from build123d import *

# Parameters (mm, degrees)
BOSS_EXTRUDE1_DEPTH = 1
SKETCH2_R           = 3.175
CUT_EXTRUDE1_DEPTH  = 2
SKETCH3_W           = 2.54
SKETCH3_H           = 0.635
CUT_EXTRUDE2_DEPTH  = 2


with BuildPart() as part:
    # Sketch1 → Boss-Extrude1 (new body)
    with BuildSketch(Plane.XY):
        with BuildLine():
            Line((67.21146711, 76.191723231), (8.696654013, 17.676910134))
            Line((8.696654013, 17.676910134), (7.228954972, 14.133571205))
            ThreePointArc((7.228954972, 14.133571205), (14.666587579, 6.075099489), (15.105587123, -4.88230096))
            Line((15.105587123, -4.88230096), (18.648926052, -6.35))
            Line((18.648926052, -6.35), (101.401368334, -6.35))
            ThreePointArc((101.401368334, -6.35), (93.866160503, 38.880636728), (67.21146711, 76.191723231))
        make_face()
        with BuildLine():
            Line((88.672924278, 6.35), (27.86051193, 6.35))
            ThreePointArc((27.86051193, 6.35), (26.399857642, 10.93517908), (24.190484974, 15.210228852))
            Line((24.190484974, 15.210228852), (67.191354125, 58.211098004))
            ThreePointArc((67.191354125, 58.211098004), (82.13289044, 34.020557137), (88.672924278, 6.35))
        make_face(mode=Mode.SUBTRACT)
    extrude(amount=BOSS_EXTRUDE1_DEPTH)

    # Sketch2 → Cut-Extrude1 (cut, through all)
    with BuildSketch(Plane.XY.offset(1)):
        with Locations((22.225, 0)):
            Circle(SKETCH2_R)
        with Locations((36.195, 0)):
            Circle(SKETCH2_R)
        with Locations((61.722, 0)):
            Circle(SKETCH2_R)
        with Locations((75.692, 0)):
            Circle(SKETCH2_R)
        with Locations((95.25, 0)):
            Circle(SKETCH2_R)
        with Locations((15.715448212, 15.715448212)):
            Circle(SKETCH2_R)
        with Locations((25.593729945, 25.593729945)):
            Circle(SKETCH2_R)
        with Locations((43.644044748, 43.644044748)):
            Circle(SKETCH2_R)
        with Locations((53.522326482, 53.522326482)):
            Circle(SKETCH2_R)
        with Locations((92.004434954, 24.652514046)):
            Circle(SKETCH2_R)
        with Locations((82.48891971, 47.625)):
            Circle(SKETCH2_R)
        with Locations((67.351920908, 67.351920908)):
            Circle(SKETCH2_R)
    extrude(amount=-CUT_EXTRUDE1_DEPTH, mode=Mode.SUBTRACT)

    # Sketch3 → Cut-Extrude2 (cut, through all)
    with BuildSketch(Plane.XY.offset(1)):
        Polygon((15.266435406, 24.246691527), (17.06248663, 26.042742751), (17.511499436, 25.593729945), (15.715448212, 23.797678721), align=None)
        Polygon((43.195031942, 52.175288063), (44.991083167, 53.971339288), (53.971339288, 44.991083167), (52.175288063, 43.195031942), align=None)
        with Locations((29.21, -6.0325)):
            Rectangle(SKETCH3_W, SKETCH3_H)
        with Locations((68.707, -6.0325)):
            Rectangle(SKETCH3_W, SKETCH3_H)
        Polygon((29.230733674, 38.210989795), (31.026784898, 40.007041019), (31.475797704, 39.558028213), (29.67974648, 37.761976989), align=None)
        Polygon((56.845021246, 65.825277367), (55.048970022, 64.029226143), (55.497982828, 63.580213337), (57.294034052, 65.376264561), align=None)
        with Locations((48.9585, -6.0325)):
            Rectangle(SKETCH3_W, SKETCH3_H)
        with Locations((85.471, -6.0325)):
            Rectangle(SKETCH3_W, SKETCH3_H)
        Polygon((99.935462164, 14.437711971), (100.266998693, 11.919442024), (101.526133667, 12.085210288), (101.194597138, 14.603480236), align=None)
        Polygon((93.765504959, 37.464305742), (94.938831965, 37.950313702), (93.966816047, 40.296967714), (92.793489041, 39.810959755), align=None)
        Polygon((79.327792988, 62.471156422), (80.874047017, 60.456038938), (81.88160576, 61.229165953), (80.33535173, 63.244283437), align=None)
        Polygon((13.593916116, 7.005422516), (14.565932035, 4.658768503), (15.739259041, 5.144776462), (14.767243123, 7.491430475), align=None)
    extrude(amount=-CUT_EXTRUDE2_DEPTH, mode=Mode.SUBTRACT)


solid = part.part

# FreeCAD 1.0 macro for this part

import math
import FreeCAD as App
import Part
import Sketcher
from FreeCAD import Vector
Q = App.Units.Quantity

doc = App.newDocument("Part")
params = doc.addObject("Spreadsheet::Sheet", "Params")
for row, (alias, value) in enumerate([
    ("sketch1_radius", "4 in"),
    ("sketch1_radius2", "3.5 in"),
    ("sketch1_radius3", "0.625 in"),
    ("sketch1_radius4", "1.125 in"),
    ("pad1_length", "1 mm"),
    ("sketch2_diameter", "0.25 in"),
    ("sketch3_width", "0.1 in"),
    ("sketch3_length", "0.1 in"),
    ("sketch3_length2", "0.5 in"),
    ("sketch3_length3", "0.05 in"),
    ("sketch3_height", "0.025 in"),
], start=1):
    params.set(f"A{row}", alias)
    params.set(f"B{row}", "=" + value)
    params.setAlias(f"B{row}", alias)

body = doc.addObject("PartDesign::Body", "Body")

# Sketch on XY plane
sketch1 = doc.addObject("Sketcher::SketchObject", "Sketch")
body.addObject(sketch1)
sketch1.AttachmentSupport = (doc.XY_Plane, [""])
sketch1.MapMode = "FlatFace"
sketch1.addGeometry([
    Part.LineSegment(Vector(67.2, 76.2, 0), Vector(8.7, 17.7, 0)),  # 0
    Part.LineSegment(Vector(8.7, 17.7, 0), Vector(7.2, 14.1, 0)),  # 1
    Part.ArcOfCircle(Part.Circle(Vector(0, 0, 0), Vector(0, 0, 1), 15.9), math.radians(-18), math.radians(63)),  # 2
    Part.LineSegment(Vector(15.1, -4.9, 0), Vector(18.6, -6.3, 0)),  # 3
    Part.LineSegment(Vector(18.6, -6.3, 0), Vector(101.4, -6.3, 0)),  # 4
    Part.ArcOfCircle(Part.Circle(Vector(0, 0, 0), Vector(0, 0, 1), 101.6), math.radians(-4), math.radians(49)),  # 5
    Part.ArcOfCircle(Part.Circle(Vector(0, 0, 0), Vector(0, 0, 1), 88.9), math.radians(4), math.radians(41)),  # 6
    Part.LineSegment(Vector(88.7, 6.3, 0), Vector(27.9, 6.3, 0)),  # 7
    Part.ArcOfCircle(Part.Circle(Vector(0, 0, 0), Vector(0, 0, 1), 28.6), math.radians(12.84), math.radians(32.16)),  # 8
    Part.LineSegment(Vector(24.2, 15.2, 0), Vector(67.2, 58.2, 0)),  # 9
], False)
sketch1.addConstraint([
    Sketcher.Constraint("Coincident", 0, 2, 1, 1),
    Sketcher.Constraint("Coincident", 1, 2, 2, 2),
    Sketcher.Constraint("Coincident", 2, 1, 3, 1),
    Sketcher.Constraint("Coincident", 3, 2, 4, 1),
    Sketcher.Constraint("Coincident", 4, 2, 5, 1),
    Sketcher.Constraint("Coincident", 5, 2, 0, 1),
    Sketcher.Constraint("Coincident", 6, 1, 7, 1),
    Sketcher.Constraint("Coincident", 7, 2, 8, 1),
    Sketcher.Constraint("Coincident", 8, 2, 9, 1),
    Sketcher.Constraint("Coincident", 9, 2, 6, 2),
    Sketcher.Constraint("Horizontal", 4),
    Sketcher.Constraint("Horizontal", 7),
    Sketcher.Constraint("Coincident", 2, 3, -1, 1),
    Sketcher.Constraint("Coincident", 5, 3, -1, 1),
    Sketcher.Constraint("Coincident", 6, 3, -1, 1),
    Sketcher.Constraint("Coincident", 8, 3, -1, 1),
    Sketcher.Constraint("Perpendicular", 1, 3),
    Sketcher.Constraint("Parallel", 0, 9),
    Sketcher.Constraint("Equal", 1, 3),
    Sketcher.Constraint("Radius", 5, Q("4 in")),
    Sketcher.Constraint("Radius", 6, Q("3.5 in")),
    Sketcher.Constraint("Angle", 0, Q("-135 deg")),
    Sketcher.Constraint("Radius", 2, Q("0.625 in")),
    Sketcher.Constraint("Radius", 8, Q("1.125 in")),
    Sketcher.Constraint("Angle", 1, Q("-112.5 deg")),
    Sketcher.Constraint("DistanceY", 4, 2, 6, 1, Q("0.5 in")),
    Sketcher.Constraint("DistanceY", 3, 2, -1, 1, Q("0.25 in")),
    Sketcher.Constraint("DistanceY", 2, 1, -1, 1, 4.882301),
    Sketcher.Constraint("DistanceY", -1, 1, 9, 2, 58.211098),
    Sketcher.Constraint("DistanceX", 5, 2, 4, 2, 34.189901),
])
sketch1.setExpression("Constraints[19]", "Params.sketch1_radius")
sketch1.setExpression("Constraints[20]", "Params.sketch1_radius2")
sketch1.setExpression("Constraints[22]", "Params.sketch1_radius3")
sketch1.setExpression("Constraints[23]", "Params.sketch1_radius4")
pad1 = doc.addObject("PartDesign::Pad", "Pad")
body.addObject(pad1)
pad1.Profile = sketch1
pad1.setExpression("Length", "Params.pad1_length")

# Sketch on XY plane
sketch2 = doc.addObject("Sketcher::SketchObject", "Sketch001")
body.addObject(sketch2)
sketch2.AttachmentSupport = (doc.XY_Plane, [""])
sketch2.MapMode = "FlatFace"
sketch2.AttachmentOffset = App.Placement(Vector(0, 0, 1), App.Rotation())
sketch2.addGeometry([
    Part.Circle(Vector(22.2, 0, 0), Vector(0, 0, 1), 3.2),  # 0
    Part.Circle(Vector(36.2, 0, 0), Vector(0, 0, 1), 3.2),  # 1
    Part.Circle(Vector(61.7, 0, 0), Vector(0, 0, 1), 3.2),  # 2
    Part.Circle(Vector(75.7, 0, 0), Vector(0, 0, 1), 3.2),  # 3
    Part.Circle(Vector(95.2, 0, 0), Vector(0, 0, 1), 3.2),  # 4
    Part.Circle(Vector(15.7, 15.7, 0), Vector(0, 0, 1), 3.2),  # 5
    Part.Circle(Vector(25.6, 25.6, 0), Vector(0, 0, 1), 3.2),  # 6
    Part.Circle(Vector(43.6, 43.6, 0), Vector(0, 0, 1), 3.2),  # 7
    Part.Circle(Vector(53.5, 53.5, 0), Vector(0, 0, 1), 3.2),  # 8
    Part.Circle(Vector(92, 24.7, 0), Vector(0, 0, 1), 3.2),  # 9
    Part.Circle(Vector(82.5, 47.6, 0), Vector(0, 0, 1), 3.2),  # 10
    Part.Circle(Vector(67.4, 67.4, 0), Vector(0, 0, 1), 3.2),  # 11
], False)
sketch2.addConstraint([
    Sketcher.Constraint("Equal", 0, 1),
    Sketcher.Constraint("Equal", 1, 2),
    Sketcher.Constraint("Equal", 2, 3),
    Sketcher.Constraint("Equal", 3, 4),
    Sketcher.Constraint("Equal", 4, 5),
    Sketcher.Constraint("Equal", 5, 6),
    Sketcher.Constraint("Equal", 6, 7),
    Sketcher.Constraint("Equal", 7, 8),
    Sketcher.Constraint("Equal", 8, 9),
    Sketcher.Constraint("Equal", 9, 10),
    Sketcher.Constraint("Equal", 10, 11),
    Sketcher.Constraint("PointOnObject", 0, 3, -1),
    Sketcher.Constraint("PointOnObject", 1, 3, -1),
    Sketcher.Constraint("PointOnObject", 2, 3, -1),
    Sketcher.Constraint("PointOnObject", 3, 3, -1),
    Sketcher.Constraint("PointOnObject", 4, 3, -1),
    Sketcher.Constraint("Diameter", 0, Q("0.25 in")),
    Sketcher.Constraint("DistanceX", -1, 1, 2, 3, Q("2.43 in")),
    Sketcher.Constraint("DistanceX", -1, 1, 3, 3, Q("2.98 in")),
    Sketcher.Constraint("DistanceX", -1, 1, 4, 3, Q("3.75 in")),
    Sketcher.Constraint("DistanceX", 0, 3, 1, 3, Q("0.55 in")),
    Sketcher.Constraint("DistanceX", -1, 1, 0, 3, Q("0.875 in")),
    Sketcher.Constraint("DistanceY", -1, 1, 10, 3, Q("1.875 in")),
    Sketcher.Constraint("DistanceX", 11, 3, 10, 3, 15.136999),
    Sketcher.Constraint("DistanceX", -1, 1, 5, 3, 15.715448),
    Sketcher.Constraint("DistanceY", -1, 1, 5, 3, 15.715448),
    Sketcher.Constraint("DistanceX", -1, 1, 6, 3, 25.59373),
    Sketcher.Constraint("DistanceY", -1, 1, 6, 3, 25.59373),
    Sketcher.Constraint("DistanceX", -1, 1, 10, 3, 82.48892),
    Sketcher.Constraint("DistanceY", -1, 1, 11, 3, 67.351921),
    Sketcher.Constraint("DistanceX", 7, 3, 8, 3, 9.878282),
    Sketcher.Constraint("DistanceY", 7, 3, 8, 3, 9.878282),
    Sketcher.Constraint("DistanceX", 5, 3, 8, 3, 37.806878),
    Sketcher.Constraint("DistanceY", 5, 3, 8, 3, 37.806878),
    Sketcher.Constraint("DistanceX", 8, 3, 9, 3, 38.482108),
    Sketcher.Constraint("DistanceY", 9, 3, 7, 3, 18.991531),
])
sketch2.setExpression("Constraints[16]", "Params.sketch2_diameter")
pocket1 = doc.addObject("PartDesign::Pocket", "Pocket")
body.addObject(pocket1)
pocket1.Profile = sketch2
pocket1.Type = "ThroughAll"

# Sketch on XY plane
sketch3 = doc.addObject("Sketcher::SketchObject", "Sketch002")
body.addObject(sketch3)
sketch3.AttachmentSupport = (doc.XY_Plane, [""])
sketch3.MapMode = "FlatFace"
sketch3.AttachmentOffset = App.Placement(Vector(0, 0, 1), App.Rotation())
sketch3.addGeometry([
    Part.LineSegment(Vector(17.1, 26, 0), Vector(15.3, 24.2, 0)),  # 0
    Part.LineSegment(Vector(15.3, 24.2, 0), Vector(15.7, 23.8, 0)),  # 1
    Part.LineSegment(Vector(15.7, 23.8, 0), Vector(17.5, 25.6, 0)),  # 2
    Part.LineSegment(Vector(17.5, 25.6, 0), Vector(17.1, 26, 0)),  # 3
    Part.LineSegment(Vector(45, 54, 0), Vector(43.2, 52.2, 0)),  # 4
    Part.LineSegment(Vector(43.2, 52.2, 0), Vector(52.2, 43.2, 0)),  # 5
    Part.LineSegment(Vector(52.2, 43.2, 0), Vector(54, 45, 0)),  # 6
    Part.LineSegment(Vector(54, 45, 0), Vector(45, 54, 0)),  # 7
    Part.LineSegment(Vector(27.9, -5.7, 0), Vector(27.9, -6.3, 0)),  # 8
    Part.LineSegment(Vector(27.9, -6.3, 0), Vector(30.5, -6.3, 0)),  # 9
    Part.LineSegment(Vector(30.5, -6.3, 0), Vector(30.5, -5.7, 0)),  # 10
    Part.LineSegment(Vector(30.5, -5.7, 0), Vector(27.9, -5.7, 0)),  # 11
    Part.LineSegment(Vector(67.4, -5.7, 0), Vector(67.4, -6.3, 0)),  # 12
    Part.LineSegment(Vector(67.4, -6.3, 0), Vector(70, -6.3, 0)),  # 13
    Part.LineSegment(Vector(70, -6.3, 0), Vector(70, -5.7, 0)),  # 14
    Part.LineSegment(Vector(70, -5.7, 0), Vector(67.4, -5.7, 0)),  # 15
    Part.LineSegment(Vector(31, 40, 0), Vector(29.2, 38.2, 0)),  # 16
    Part.LineSegment(Vector(29.2, 38.2, 0), Vector(29.7, 37.8, 0)),  # 17
    Part.LineSegment(Vector(29.7, 37.8, 0), Vector(31.5, 39.6, 0)),  # 18
    Part.LineSegment(Vector(31.5, 39.6, 0), Vector(31, 40, 0)),  # 19
    Part.LineSegment(Vector(56.8, 65.8, 0), Vector(55, 64, 0)),  # 20
    Part.LineSegment(Vector(55, 64, 0), Vector(55.5, 63.6, 0)),  # 21
    Part.LineSegment(Vector(55.5, 63.6, 0), Vector(57.3, 65.4, 0)),  # 22
    Part.LineSegment(Vector(57.3, 65.4, 0), Vector(56.8, 65.8, 0)),  # 23
    Part.LineSegment(Vector(47.7, -5.7, 0), Vector(47.7, -6.3, 0)),  # 24
    Part.LineSegment(Vector(47.7, -6.3, 0), Vector(50.2, -6.3, 0)),  # 25
    Part.LineSegment(Vector(50.2, -6.3, 0), Vector(50.2, -5.7, 0)),  # 26
    Part.LineSegment(Vector(50.2, -5.7, 0), Vector(47.7, -5.7, 0)),  # 27
    Part.LineSegment(Vector(84.2, -5.7, 0), Vector(84.2, -6.3, 0)),  # 28
    Part.LineSegment(Vector(84.2, -6.3, 0), Vector(86.7, -6.3, 0)),  # 29
    Part.LineSegment(Vector(86.7, -6.3, 0), Vector(86.7, -5.7, 0)),  # 30
    Part.LineSegment(Vector(86.7, -5.7, 0), Vector(84.2, -5.7, 0)),  # 31
    Part.LineSegment(Vector(99.9, 14.4, 0), Vector(100.3, 11.9, 0)),  # 32
    Part.LineSegment(Vector(100.3, 11.9, 0), Vector(101.5, 12.1, 0)),  # 33
    Part.LineSegment(Vector(101.5, 12.1, 0), Vector(101.2, 14.6, 0)),  # 34
    Part.LineSegment(Vector(101.2, 14.6, 0), Vector(99.9, 14.4, 0)),  # 35
    Part.LineSegment(Vector(93.8, 37.5, 0), Vector(94.9, 38, 0)),  # 36
    Part.LineSegment(Vector(94.9, 38, 0), Vector(94, 40.3, 0)),  # 37
    Part.LineSegment(Vector(94, 40.3, 0), Vector(92.8, 39.8, 0)),  # 38
    Part.LineSegment(Vector(92.8, 39.8, 0), Vector(93.8, 37.5, 0)),  # 39
    Part.LineSegment(Vector(79.3, 62.5, 0), Vector(80.9, 60.5, 0)),  # 40
    Part.LineSegment(Vector(80.9, 60.5, 0), Vector(81.9, 61.2, 0)),  # 41
    Part.LineSegment(Vector(81.9, 61.2, 0), Vector(80.3, 63.2, 0)),  # 42
    Part.LineSegment(Vector(80.3, 63.2, 0), Vector(79.3, 62.5, 0)),  # 43
    Part.LineSegment(Vector(13.6, 7, 0), Vector(14.6, 4.7, 0)),  # 44
    Part.LineSegment(Vector(14.6, 4.7, 0), Vector(15.7, 5.1, 0)),  # 45
    Part.LineSegment(Vector(15.7, 5.1, 0), Vector(14.8, 7.5, 0)),  # 46
    Part.LineSegment(Vector(14.8, 7.5, 0), Vector(13.6, 7, 0)),  # 47
], False)
sketch3.addConstraint([
    Sketcher.Constraint("Coincident", 0, 2, 1, 1),
    Sketcher.Constraint("Coincident", 1, 2, 2, 1),
    Sketcher.Constraint("Coincident", 2, 2, 3, 1),
    Sketcher.Constraint("Coincident", 3, 2, 0, 1),
    Sketcher.Constraint("Coincident", 4, 2, 5, 1),
    Sketcher.Constraint("Coincident", 5, 2, 6, 1),
    Sketcher.Constraint("Coincident", 6, 2, 7, 1),
    Sketcher.Constraint("Coincident", 7, 2, 4, 1),
    Sketcher.Constraint("Coincident", 8, 2, 9, 1),
    Sketcher.Constraint("Coincident", 9, 2, 10, 1),
    Sketcher.Constraint("Coincident", 10, 2, 11, 1),
    Sketcher.Constraint("Coincident", 11, 2, 8, 1),
    Sketcher.Constraint("Coincident", 12, 2, 13, 1),
    Sketcher.Constraint("Coincident", 13, 2, 14, 1),
    Sketcher.Constraint("Coincident", 14, 2, 15, 1),
    Sketcher.Constraint("Coincident", 15, 2, 12, 1),
    Sketcher.Constraint("Coincident", 16, 2, 17, 1),
    Sketcher.Constraint("Coincident", 17, 2, 18, 1),
    Sketcher.Constraint("Coincident", 18, 2, 19, 1),
    Sketcher.Constraint("Coincident", 19, 2, 16, 1),
    Sketcher.Constraint("Coincident", 20, 2, 21, 1),
    Sketcher.Constraint("Coincident", 21, 2, 22, 1),
    Sketcher.Constraint("Coincident", 22, 2, 23, 1),
    Sketcher.Constraint("Coincident", 23, 2, 20, 1),
    Sketcher.Constraint("Coincident", 24, 2, 25, 1),
    Sketcher.Constraint("Coincident", 25, 2, 26, 1),
    Sketcher.Constraint("Coincident", 26, 2, 27, 1),
    Sketcher.Constraint("Coincident", 27, 2, 24, 1),
    Sketcher.Constraint("Coincident", 28, 2, 29, 1),
    Sketcher.Constraint("Coincident", 29, 2, 30, 1),
    Sketcher.Constraint("Coincident", 30, 2, 31, 1),
    Sketcher.Constraint("Coincident", 31, 2, 28, 1),
    Sketcher.Constraint("Coincident", 32, 2, 33, 1),
    Sketcher.Constraint("Coincident", 33, 2, 34, 1),
    Sketcher.Constraint("Coincident", 34, 2, 35, 1),
    Sketcher.Constraint("Coincident", 35, 2, 32, 1),
    Sketcher.Constraint("Coincident", 36, 2, 37, 1),
    Sketcher.Constraint("Coincident", 37, 2, 38, 1),
    Sketcher.Constraint("Coincident", 38, 2, 39, 1),
    Sketcher.Constraint("Coincident", 39, 2, 36, 1),
    Sketcher.Constraint("Coincident", 40, 2, 41, 1),
    Sketcher.Constraint("Coincident", 41, 2, 42, 1),
    Sketcher.Constraint("Coincident", 42, 2, 43, 1),
    Sketcher.Constraint("Coincident", 43, 2, 40, 1),
    Sketcher.Constraint("Coincident", 44, 2, 45, 1),
    Sketcher.Constraint("Coincident", 45, 2, 46, 1),
    Sketcher.Constraint("Coincident", 46, 2, 47, 1),
    Sketcher.Constraint("Coincident", 47, 2, 44, 1),
    Sketcher.Constraint("Vertical", 8),
    Sketcher.Constraint("Horizontal", 9),
    Sketcher.Constraint("Vertical", 10),
    Sketcher.Constraint("Horizontal", 11),
    Sketcher.Constraint("Vertical", 12),
    Sketcher.Constraint("Horizontal", 13),
    Sketcher.Constraint("Vertical", 14),
    Sketcher.Constraint("Horizontal", 15),
    Sketcher.Constraint("Vertical", 24),
    Sketcher.Constraint("Horizontal", 25),
    Sketcher.Constraint("Vertical", 26),
    Sketcher.Constraint("Horizontal", 27),
    Sketcher.Constraint("Vertical", 28),
    Sketcher.Constraint("Horizontal", 29),
    Sketcher.Constraint("Vertical", 30),
    Sketcher.Constraint("Horizontal", 31),
    Sketcher.Constraint("Perpendicular", 0, 1),
    Sketcher.Constraint("Perpendicular", 1, 2),
    Sketcher.Constraint("Perpendicular", 2, 3),
    Sketcher.Constraint("Perpendicular", 3, 4),
    Sketcher.Constraint("Perpendicular", 4, 5),
    Sketcher.Constraint("Perpendicular", 5, 6),
    Sketcher.Constraint("Perpendicular", 6, 7),
    Sketcher.Constraint("Perpendicular", 7, 16),
    Sketcher.Constraint("Perpendicular", 16, 17),
    Sketcher.Constraint("Perpendicular", 17, 18),
    Sketcher.Constraint("Perpendicular", 18, 19),
    Sketcher.Constraint("Perpendicular", 19, 20),
    Sketcher.Constraint("Perpendicular", 20, 21),
    Sketcher.Constraint("Perpendicular", 21, 22),
    Sketcher.Constraint("Perpendicular", 22, 23),
    Sketcher.Constraint("Perpendicular", 32, 33),
    Sketcher.Constraint("Perpendicular", 33, 34),
    Sketcher.Constraint("Perpendicular", 34, 35),
    Sketcher.Constraint("Perpendicular", 36, 37),
    Sketcher.Constraint("Perpendicular", 37, 38),
    Sketcher.Constraint("Perpendicular", 38, 39),
    Sketcher.Constraint("Perpendicular", 40, 41),
    Sketcher.Constraint("Perpendicular", 41, 42),
    Sketcher.Constraint("Perpendicular", 42, 43),
    Sketcher.Constraint("Parallel", 39, 44),
    Sketcher.Constraint("Perpendicular", 44, 45),
    Sketcher.Constraint("Perpendicular", 45, 46),
    Sketcher.Constraint("Perpendicular", 46, 47),
    Sketcher.Constraint("Horizontal", 9, 2, 12, 2),
    Sketcher.Constraint("Horizontal", 11, 2, 14, 2),
    Sketcher.Constraint("Horizontal", 13, 2, 24, 2),
    Sketcher.Constraint("Horizontal", 15, 2, 26, 2),
    Sketcher.Constraint("Horizontal", 25, 2, 28, 2),
    Sketcher.Constraint("Horizontal", 27, 2, 30, 2),
    Sketcher.Constraint("Equal", 11, 13),
    Sketcher.Constraint("Equal", 15, 25),
    Sketcher.Constraint("Equal", 27, 29),
    Sketcher.Constraint("Equal", 2, 4),
    Sketcher.Constraint("Equal", 6, 16),
    Sketcher.Constraint("Equal", 3, 17),
    Sketcher.Constraint("Equal", 18, 20),
    Sketcher.Constraint("Equal", 19, 21),
    Sketcher.Constraint("Equal", 22, 32),
    Sketcher.Constraint("Equal", 35, 36),
    Sketcher.Constraint("Equal", 34, 37),
    Sketcher.Constraint("Equal", 39, 40),
    Sketcher.Constraint("Equal", 38, 41),
    Sketcher.Constraint("Equal", 42, 44),
    Sketcher.Constraint("Equal", 43, 45),
    Sketcher.Constraint("DistanceX", 9, 1, 9, 2, Q("0.1 in")),
    Sketcher.Constraint("Angle", 0, Q("-135 deg")),
    Sketcher.Constraint("Distance", 0, Q("0.1 in")),
    Sketcher.Constraint("Distance", 5, Q("0.5 in")),
    Sketcher.Constraint("DistanceX", -1, 1, 8, 2, Q("1.1 in")),
    Sketcher.Constraint("Angle", 32, Q("-82.5 deg")),
    Sketcher.Constraint("Angle", 36, Q("22.5 deg")),
    Sketcher.Constraint("Angle", 40, Q("-52.5 deg")),
    Sketcher.Constraint("Distance", 33, Q("0.05 in")),
    Sketcher.Constraint("DistanceY", 8, 2, 8, 1, Q("0.025 in")),
    Sketcher.Constraint("DistanceY", 8, 2, -1, 1, Q("0.25 in")),
    Sketcher.Constraint("DistanceX", 13, 2, 28, 2, Q("0.56 in")),
    Sketcher.Constraint("Distance", 1, Q("0.025 in")),
    Sketcher.Constraint("DistanceX", -1, 1, 12, 2, Q("2.655 in")),
    Sketcher.Constraint("DistanceX", -1, 1, 24, 2, Q("1.8775 in")),
    Sketcher.Constraint("DistanceX", -1, 1, 2, 2, 17.511499),
    Sketcher.Constraint("DistanceX", -1, 1, 32, 2, 100.266999),
    Sketcher.Constraint("DistanceY", 2, 2, 5, 2, 17.601302),
    Sketcher.Constraint("DistanceX", 3, 2, 5, 2, 35.112801),
    Sketcher.Constraint("DistanceX", 16, 2, 4, 2, 13.964298),
    Sketcher.Constraint("DistanceY", 16, 2, 4, 2, 13.964298),
    Sketcher.Constraint("DistanceX", 7, 2, 21, 2, 10.5069),
    Sketcher.Constraint("DistanceY", 35, 2, 36, 2, 23.512602),
    Sketcher.Constraint("DistanceX", 36, 2, 33, 2, 6.587302),
    Sketcher.Constraint("DistanceY", 37, 2, 41, 2, 20.932198),
    Sketcher.Constraint("DistanceY", 41, 2, 22, 2, 4.147099),
    Sketcher.Constraint("DistanceY", 46, 2, 2, 2, 18.102299),
    Sketcher.Constraint("DistanceY", -1, 1, 0, 2, 24.246692),
    Sketcher.Constraint("DistanceY", -1, 1, 33, 2, 12.08521),
    Sketcher.Constraint("DistanceX", -1, 1, 42, 2, 80.335352),
    Sketcher.Constraint("DistanceX", -1, 1, 45, 2, 15.739259),
])
sketch3.setExpression("Constraints[113]", "Params.sketch3_width")
sketch3.setExpression("Constraints[115]", "Params.sketch3_length")
sketch3.setExpression("Constraints[116]", "Params.sketch3_length2")
sketch3.setExpression("Constraints[121]", "Params.sketch3_length3")
sketch3.setExpression("Constraints[122]", "Params.sketch3_height")
pocket2 = doc.addObject("PartDesign::Pocket", "Pocket001")
body.addObject(pocket2)
pocket2.Profile = sketch3
pocket2.Type = "ThroughAll"

doc.recompute()
